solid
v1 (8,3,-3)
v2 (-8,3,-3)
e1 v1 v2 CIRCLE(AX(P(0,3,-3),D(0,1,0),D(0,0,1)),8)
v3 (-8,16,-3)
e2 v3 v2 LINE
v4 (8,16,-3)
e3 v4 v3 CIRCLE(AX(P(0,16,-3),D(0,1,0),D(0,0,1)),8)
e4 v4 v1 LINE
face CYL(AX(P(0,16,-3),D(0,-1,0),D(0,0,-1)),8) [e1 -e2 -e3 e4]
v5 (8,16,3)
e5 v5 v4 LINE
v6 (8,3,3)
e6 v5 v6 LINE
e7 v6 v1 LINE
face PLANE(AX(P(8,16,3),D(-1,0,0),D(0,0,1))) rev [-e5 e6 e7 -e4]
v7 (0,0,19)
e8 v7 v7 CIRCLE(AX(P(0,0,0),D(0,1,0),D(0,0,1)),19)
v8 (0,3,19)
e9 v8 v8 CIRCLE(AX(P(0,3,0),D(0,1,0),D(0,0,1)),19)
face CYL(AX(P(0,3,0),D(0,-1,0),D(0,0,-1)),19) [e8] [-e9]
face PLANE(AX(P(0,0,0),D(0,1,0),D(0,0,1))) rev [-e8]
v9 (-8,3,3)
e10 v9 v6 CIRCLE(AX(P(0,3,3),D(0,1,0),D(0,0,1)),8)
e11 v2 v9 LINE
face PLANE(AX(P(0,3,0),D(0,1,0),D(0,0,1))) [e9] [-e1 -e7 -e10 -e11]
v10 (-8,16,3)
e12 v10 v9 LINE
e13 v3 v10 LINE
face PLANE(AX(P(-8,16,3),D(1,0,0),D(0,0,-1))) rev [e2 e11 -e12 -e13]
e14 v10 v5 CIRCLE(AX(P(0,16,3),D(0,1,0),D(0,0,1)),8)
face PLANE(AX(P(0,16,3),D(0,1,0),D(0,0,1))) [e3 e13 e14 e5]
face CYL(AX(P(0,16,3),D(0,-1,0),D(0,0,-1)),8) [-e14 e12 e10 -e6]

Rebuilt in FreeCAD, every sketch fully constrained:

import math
import FreeCAD as App
import Part
import Sketcher

doc = App.newDocument("Part")
params = doc.addObject("Spreadsheet::Sheet", "Params")
for row, (alias, value) in enumerate([
    ("sketch1_diameter", "38 mm"),
    ("pad1_length", "3 mm"),
    ("sketch2_radius", "8 mm"),
    ("sketch2_height", "6 mm"),
    ("pad2_length", "13 mm"),
], start=1):
    params.set(f"A{row}", alias)
    params.set(f"B{row}", "=" + value)
    params.setAlias(f"B{row}", alias)

body = doc.addObject("PartDesign::Body", "Body")

# Sketch on XZ plane
sketch1 = doc.addObject("Sketcher::SketchObject", "Sketch")
body.addObject(sketch1)
sketch1.AttachmentSupport = (doc.XZ_Plane, [""])
sketch1.MapMode = "FlatFace"
sketch1.addGeometry(Part.Circle(App.Vector(0, 0, 0), App.Vector(0, 0, 1), 19), False)
sketch1.addConstraint(Sketcher.Constraint("Coincident", 0, 3, -1, 1))
sketch1.addConstraint(Sketcher.Constraint("Diameter", 0, 38.0))
sketch1.setExpression("Constraints[1]", "Params.sketch1_diameter")
pad1 = doc.addObject("PartDesign::Pad", "Pad")
body.addObject(pad1)
pad1.Profile = sketch1
pad1.setExpression("Length", "Params.pad1_length")
pad1.Reversed = True

# Sketch on XZ plane
sketch2 = doc.addObject("Sketcher::SketchObject", "Sketch001")
body.addObject(sketch2)
sketch2.AttachmentSupport = (doc.XZ_Plane, [""])
sketch2.MapMode = "FlatFace"
sketch2.AttachmentOffset = App.Placement(App.Vector(0, 0, -3), App.Rotation())
sketch2.addGeometry(Part.LineSegment(App.Vector(-8, -3, 0), App.Vector(-8, 3, 0)), False)
sketch2.addGeometry(Part.ArcOfCircle(Part.Circle(App.Vector(0, 3, 0), App.Vector(0, 0, 1), 8), math.radians(0), math.radians(180)), False)
sketch2.addGeometry(Part.LineSegment(App.Vector(8, 3, 0), App.Vector(8, -3, 0)), False)
sketch2.addGeometry(Part.ArcOfCircle(Part.Circle(App.Vector(0, -3, 0), App.Vector(0, 0, 1), 8), math.radians(180), math.radians(360)), False)
sketch2.addConstraint(Sketcher.Constraint("Tangent", 0, 2, 1, 2))
sketch2.addConstraint(Sketcher.Constraint("Tangent", 1, 1, 2, 1))
sketch2.addConstraint(Sketcher.Constraint("Tangent", 2, 2, 3, 2))
sketch2.addConstraint(Sketcher.Constraint("Tangent", 3, 1, 0, 1))
sketch2.addConstraint(Sketcher.Constraint("Vertical", 0))
sketch2.addConstraint(Sketcher.Constraint("Vertical", 2))
sketch2.addConstraint(Sketcher.Constraint("Symmetric", 1, 3, 3, 3, -1, 1))
sketch2.addConstraint(Sketcher.Constraint("Radius", 1, 8.0))
sketch2.addConstraint(Sketcher.Constraint("DistanceY", 0, 1, 0, 2, 6.0))
sketch2.setExpression("Constraints[7]", "Params.sketch2_radius")
sketch2.setExpression("Constraints[8]", "Params.sketch2_height")
pad2 = doc.addObject("PartDesign::Pad", "Pad001")
body.addObject(pad2)
pad2.Profile = sketch2
pad2.setExpression("Length", "Params.pad2_length")
pad2.Reversed = True

doc.recompute()
